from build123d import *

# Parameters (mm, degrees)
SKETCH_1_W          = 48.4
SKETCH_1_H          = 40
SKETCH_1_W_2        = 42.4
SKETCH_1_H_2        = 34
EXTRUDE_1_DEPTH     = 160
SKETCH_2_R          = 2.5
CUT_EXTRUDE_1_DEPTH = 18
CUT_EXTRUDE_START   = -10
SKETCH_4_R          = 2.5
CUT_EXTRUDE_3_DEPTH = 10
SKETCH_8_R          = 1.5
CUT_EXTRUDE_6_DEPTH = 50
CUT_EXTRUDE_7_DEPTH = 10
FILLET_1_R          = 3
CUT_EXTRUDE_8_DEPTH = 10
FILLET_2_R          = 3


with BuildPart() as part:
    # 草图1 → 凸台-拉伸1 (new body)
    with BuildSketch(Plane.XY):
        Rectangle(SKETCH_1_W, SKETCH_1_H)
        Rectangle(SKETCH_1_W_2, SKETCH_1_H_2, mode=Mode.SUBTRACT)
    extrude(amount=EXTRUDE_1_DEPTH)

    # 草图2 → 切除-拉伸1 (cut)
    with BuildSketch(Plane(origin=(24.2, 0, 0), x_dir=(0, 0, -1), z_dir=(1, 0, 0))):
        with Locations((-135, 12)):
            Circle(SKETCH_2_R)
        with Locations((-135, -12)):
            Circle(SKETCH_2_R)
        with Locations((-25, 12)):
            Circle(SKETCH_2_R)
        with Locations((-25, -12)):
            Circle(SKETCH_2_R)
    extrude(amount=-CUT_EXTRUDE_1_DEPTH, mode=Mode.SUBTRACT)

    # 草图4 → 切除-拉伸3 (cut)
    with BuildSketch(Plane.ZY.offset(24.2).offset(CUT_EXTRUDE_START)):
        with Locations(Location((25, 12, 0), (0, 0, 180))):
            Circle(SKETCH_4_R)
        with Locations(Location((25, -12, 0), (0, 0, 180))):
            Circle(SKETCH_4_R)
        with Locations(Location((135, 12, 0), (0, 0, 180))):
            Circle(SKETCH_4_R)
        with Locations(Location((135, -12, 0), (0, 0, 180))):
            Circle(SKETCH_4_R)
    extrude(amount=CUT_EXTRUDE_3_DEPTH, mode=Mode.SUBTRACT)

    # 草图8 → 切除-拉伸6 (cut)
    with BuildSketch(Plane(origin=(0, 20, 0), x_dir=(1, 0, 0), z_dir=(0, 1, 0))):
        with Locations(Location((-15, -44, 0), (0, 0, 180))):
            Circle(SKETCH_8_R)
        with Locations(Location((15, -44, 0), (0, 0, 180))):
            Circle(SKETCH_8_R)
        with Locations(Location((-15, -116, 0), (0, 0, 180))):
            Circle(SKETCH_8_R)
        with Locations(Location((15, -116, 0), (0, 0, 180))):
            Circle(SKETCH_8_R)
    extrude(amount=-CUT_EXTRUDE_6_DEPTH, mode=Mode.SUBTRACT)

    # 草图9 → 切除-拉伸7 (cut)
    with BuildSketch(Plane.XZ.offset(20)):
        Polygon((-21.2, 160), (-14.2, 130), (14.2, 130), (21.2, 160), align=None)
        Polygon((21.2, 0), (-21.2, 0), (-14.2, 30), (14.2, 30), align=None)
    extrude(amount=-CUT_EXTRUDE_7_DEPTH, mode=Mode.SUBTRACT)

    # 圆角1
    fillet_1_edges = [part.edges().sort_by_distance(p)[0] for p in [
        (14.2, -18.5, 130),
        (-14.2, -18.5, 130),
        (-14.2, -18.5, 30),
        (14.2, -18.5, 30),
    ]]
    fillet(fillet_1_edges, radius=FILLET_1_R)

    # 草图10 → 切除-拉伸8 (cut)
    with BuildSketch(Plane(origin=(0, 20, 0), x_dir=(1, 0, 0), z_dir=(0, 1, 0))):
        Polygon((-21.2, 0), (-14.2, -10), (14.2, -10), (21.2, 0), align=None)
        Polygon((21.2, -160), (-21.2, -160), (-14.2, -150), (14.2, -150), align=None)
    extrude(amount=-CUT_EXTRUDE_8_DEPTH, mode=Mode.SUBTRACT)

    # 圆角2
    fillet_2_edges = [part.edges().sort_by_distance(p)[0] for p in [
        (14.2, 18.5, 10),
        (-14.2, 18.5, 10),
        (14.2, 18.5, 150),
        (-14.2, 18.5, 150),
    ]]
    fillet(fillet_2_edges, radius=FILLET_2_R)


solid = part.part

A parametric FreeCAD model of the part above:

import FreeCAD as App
import Part
import Sketcher
from FreeCAD import Vector


def edges_at(feature, points):
    """Names of the edges that pass closest to the given points."""
    edges = feature.Shape.Edges
    near = lambda p: min(range(len(edges)), key=lambda i: edges[i].distToShape(Part.Vertex(*p))[0])
    return sorted({f"Edge{near(p) + 1}" for p in points})


def add_polygon(sketch, points):
    """Adds a closed chain of lines whose ends are joined by coincident constraints."""
    first, n = sketch.GeometryCount, len(points)
    for a, b in zip(points, points[1:] + points[:1]):
        sketch.addGeometry(Part.LineSegment(App.Vector(*a, 0), App.Vector(*b, 0)), False)
    for i in range(n):
        sketch.addConstraint(Sketcher.Constraint("Coincident", first + i, 2, first + (i + 1) % n, 1))

doc = App.newDocument("Part")
body = doc.addObject("PartDesign::Body", "Body")

sketch1 = body.newObject("Sketcher::SketchObject", "Sketch")
sketch1.AttachmentSupport = (doc.getObject("XY_Plane"), [""])
sketch1.MapMode = "FlatFace"
add_polygon(sketch1, [(-24, 20), (-24, -20), (24, -20), (24, 20)])
add_polygon(sketch1, [(21, -17), (-21, -17), (-21, 17), (21, 17)])
sketch1.addConstraint(Sketcher.Constraint("Vertical", 0))
sketch1.addConstraint(Sketcher.Constraint("Horizontal", 1))
sketch1.addConstraint(Sketcher.Constraint("Vertical", 2))
sketch1.addConstraint(Sketcher.Constraint("Horizontal", 3))
sketch1.addConstraint(Sketcher.Constraint("Horizontal", 4))
sketch1.addConstraint(Sketcher.Constraint("Vertical", 5))
sketch1.addConstraint(Sketcher.Constraint("Horizontal", 6))
sketch1.addConstraint(Sketcher.Constraint("Vertical", 7))
sketch1.addConstraint(Sketcher.Constraint("Symmetric", 0, 2, 2, 2, -1, 1))
sketch1.addConstraint(Sketcher.Constraint("Symmetric", 4, 2, 6, 2, -1, 1))
sketch1.addConstraint(Sketcher.Constraint("DistanceY", 0, 2, 0, 1, 40.0))
sketch1.addConstraint(Sketcher.Constraint("DistanceY", 5, 1, 5, 2, 34.0))
sketch1.addConstraint(Sketcher.Constraint("DistanceX", 1, 1, 1, 2, 48.4))
sketch1.addConstraint(Sketcher.Constraint("DistanceX", 4, 2, 4, 1, 42.4))
pad1 = body.newObject("PartDesign::Pad", "Pad")
pad1.Profile = sketch1
pad1.Length = 160

sketch2 = body.newObject("Sketcher::SketchObject", "Sketch001")
sketch2.AttachmentSupport = (doc.getObject("YZ_Plane"), [""])
sketch2.MapMode = "FlatFace"
sketch2.AttachmentOffset = App.Placement(Vector(0, 0, 24.2), App.Rotation())
sketch2.addGeometry(Part.Circle(Vector(12, 135, 0), Vector(0, 0, 1), 2.5), False)
sketch2.addGeometry(Part.Circle(Vector(-12, 135, 0), Vector(0, 0, 1), 2.5), False)
sketch2.addGeometry(Part.Circle(Vector(12, 25, 0), Vector(0, 0, 1), 2.5), False)
sketch2.addGeometry(Part.Circle(Vector(-12, 25, 0), Vector(0, 0, 1), 2.5), False)
sketch2.addConstraint(Sketcher.Constraint("Equal", 0, 1))
sketch2.addConstraint(Sketcher.Constraint("Equal", 1, 2))
sketch2.addConstraint(Sketcher.Constraint("Equal", 2, 3))
sketch2.addConstraint(Sketcher.Constraint("Symmetric", 0, 3, 1, 3, -2))
sketch2.addConstraint(Sketcher.Constraint("Symmetric", 2, 3, 3, 3, -2))
sketch2.addConstraint(Sketcher.Constraint("Vertical", 0, 3, 2, 3))
sketch2.addConstraint(Sketcher.Constraint("Diameter", 0, 5.0))
sketch2.addConstraint(Sketcher.Constraint("DistanceX", -1, 1, 0, 3, 12.0))
sketch2.addConstraint(Sketcher.Constraint("DistanceY", -1, 1, 0, 3, 135.0))
sketch2.addConstraint(Sketcher.Constraint("DistanceY", -1, 1, 2, 3, 25.0))
pocket1 = body.newObject("PartDesign::Pocket", "Pocket")
pocket1.Profile = sketch2
pocket1.Length = 18

sketch3 = body.newObject("Sketcher::SketchObject", "Sketch002")
sketch3.AttachmentSupport = (doc.getObject("YZ_Plane"), [""])
sketch3.MapMode = "FlatFace"
sketch3.AttachmentOffset = App.Placement(Vector(0, 0, -14.2), App.Rotation())
sketch3.addGeometry(Part.Circle(Vector(12, 25, 0), Vector(0, 0, 1), 2.5), False)
sketch3.addGeometry(Part.Circle(Vector(-12, 25, 0), Vector(0, 0, 1), 2.5), False)
sketch3.addGeometry(Part.Circle(Vector(12, 135, 0), Vector(0, 0, 1), 2.5), False)
sketch3.addGeometry(Part.Circle(Vector(-12, 135, 0), Vector(0, 0, 1), 2.5), False)
sketch3.addConstraint(Sketcher.Constraint("Equal", 0, 1))
sketch3.addConstraint(Sketcher.Constraint("Equal", 1, 2))
sketch3.addConstraint(Sketcher.Constraint("Equal", 2, 3))
sketch3.addConstraint(Sketcher.Constraint("Symmetric", 0, 3, 1, 3, -2))
sketch3.addConstraint(Sketcher.Constraint("Symmetric", 2, 3, 3, 3, -2))
sketch3.addConstraint(Sketcher.Constraint("Vertical", 0, 3, 2, 3))
sketch3.addConstraint(Sketcher.Constraint("Diameter", 0, 5.0))
sketch3.addConstraint(Sketcher.Constraint("DistanceX", -1, 1, 0, 3, 12.0))
sketch3.addConstraint(Sketcher.Constraint("DistanceY", -1, 1, 0, 3, 25.0))
sketch3.addConstraint(Sketcher.Constraint("DistanceY", -1, 1, 2, 3, 135.0))
pocket2 = body.newObject("PartDesign::Pocket", "Pocket001")
pocket2.Profile = sketch3
pocket2.Length = 10

sketch4 = body.newObject("Sketcher::SketchObject", "Sketch003")
sketch4.AttachmentSupport = (doc.getObject("XZ_Plane"), [""])
sketch4.MapMode = "FlatFace"
sketch4.AttachmentOffset = App.Placement(Vector(0, 0, -20), App.Rotation())
sketch4.addGeometry(Part.Circle(Vector(-15, 44, 0), Vector(0, 0, 1), 1.5), False)
sketch4.addGeometry(Part.Circle(Vector(15, 44, 0), Vector(0, 0, 1), 1.5), False)
sketch4.addGeometry(Part.Circle(Vector(-15, 116, 0), Vector(0, 0, 1), 1.5), False)
sketch4.addGeometry(Part.Circle(Vector(15, 116, 0), Vector(0, 0, 1), 1.5), False)
sketch4.addConstraint(Sketcher.Constraint("Equal", 0, 1))
sketch4.addConstraint(Sketcher.Constraint("Equal", 1, 2))
sketch4.addConstraint(Sketcher.Constraint("Equal", 2, 3))
sketch4.addConstraint(Sketcher.Constraint("Symmetric", 0, 3, 1, 3, -2))
sketch4.addConstraint(Sketcher.Constraint("Symmetric", 2, 3, 3, 3, -2))
sketch4.addConstraint(Sketcher.Constraint("Vertical", 0, 3, 2, 3))
sketch4.addConstraint(Sketcher.Constraint("Diameter", 0, 3.0))
sketch4.addConstraint(Sketcher.Constraint("DistanceX", 0, 3, -1, 1, 15.0))
sketch4.addConstraint(Sketcher.Constraint("DistanceY", -1, 1, 0, 3, 44.0))
sketch4.addConstraint(Sketcher.Constraint("DistanceY", -1, 1, 2, 3, 116.0))
pocket3 = body.newObject("PartDesign::Pocket", "Pocket002")
pocket3.Profile = sketch4
pocket3.Length = 50
pocket3.Reversed = True

sketch5 = body.newObject("Sketcher::SketchObject", "Sketch004")
sketch5.AttachmentSupport = (doc.getObject("XZ_Plane"), [""])
sketch5.MapMode = "FlatFace"
sketch5.AttachmentOffset = App.Placement(Vector(0, 0, 20), App.Rotation())
add_polygon(sketch5, [(-21, 160), (-14, 130), (14, 130), (21, 160)])
add_polygon(sketch5, [(-21, 0), (21, 0), (14, 30), (-14, 30)])
sketch5.addConstraint(Sketcher.Constraint("Horizontal", 1))
sketch5.addConstraint(Sketcher.Constraint("Horizontal", 3))
sketch5.addConstraint(Sketcher.Constraint("Horizontal", 4))
sketch5.addConstraint(Sketcher.Constraint("Horizontal", 6))
sketch5.addConstraint(Sketcher.Constraint("Symmetric", 4, 2, 7, 2, -1, 1))
sketch5.addConstraint(Sketcher.Constraint("Parallel", 0, 5))
sketch5.addConstraint(Sketcher.Constraint("Parallel", 2, 7))
sketch5.addConstraint(Sketcher.Constraint("Vertical", 2, 2, 4, 2))
sketch5.addConstraint(Sketcher.Constraint("Vertical", 1, 2, 5, 2))
sketch5.addConstraint(Sketcher.Constraint("Vertical", 0, 2, 6, 2))
sketch5.addConstraint(Sketcher.Constraint("Vertical", 3, 2, 7, 2))
sketch5.addConstraint(Sketcher.Constraint("DistanceX", 1, 1, 1, 2, 28.4))
sketch5.addConstraint(Sketcher.Constraint("DistanceX", 3, 2, 3, 1, 42.4))
sketch5.addConstraint(Sketcher.Constraint("DistanceY", -1, 1, 0, 2, 130.0))
sketch5.addConstraint(Sketcher.Constraint("DistanceY", -1, 1, 2, 2, 160.0))
pocket4 = body.newObject("PartDesign::Pocket", "Pocket003")
pocket4.Profile = sketch5
pocket4.Length = 10
doc.recompute()

fillet = body.newObject("PartDesign::Fillet", "Fillet")
fillet.Base = (pocket4, edges_at(pocket4, [
    (14.2, -18.5, 130),
    (-14.2, -18.5, 130),
    (-14.2, -18.5, 30),
    (14.2, -18.5, 30),
]))
fillet.Radius = 3

sketch6 = body.newObject("Sketcher::SketchObject", "Sketch005")
sketch6.AttachmentSupport = (doc.getObject("XZ_Plane"), [""])
sketch6.MapMode = "FlatFace"
sketch6.AttachmentOffset = App.Placement(Vector(0, 0, -20), App.Rotation())
add_polygon(sketch6, [(-21, 0), (-14, 10), (14, 10), (21, 0)])
add_polygon(sketch6, [(-21, 160), (21, 160), (14, 150), (-14, 150)])
sketch6.addConstraint(Sketcher.Constraint("Horizontal", 1))
sketch6.addConstraint(Sketcher.Constraint("Horizontal", 3))
sketch6.addConstraint(Sketcher.Constraint("Horizontal", 4))
sketch6.addConstraint(Sketcher.Constraint("Horizontal", 6))
sketch6.addConstraint(Sketcher.Constraint("Symmetric", 2, 2, 3, 2, -1, 1))
sketch6.addConstraint(Sketcher.Constraint("Parallel", 0, 5))
sketch6.addConstraint(Sketcher.Constraint("Parallel", 2, 7))
sketch6.addConstraint(Sketcher.Constraint("Vertical", 2, 2, 4, 2))
sketch6.addConstraint(Sketcher.Constraint("Vertical", 1, 2, 5, 2))
sketch6.addConstraint(Sketcher.Constraint("Vertical", 0, 2, 6, 2))
sketch6.addConstraint(Sketcher.Constraint("Vertical", 3, 2, 7, 2))
sketch6.addConstraint(Sketcher.Constraint("DistanceX", 1, 1, 1, 2, 28.4))
sketch6.addConstraint(Sketcher.Constraint("DistanceX", 3, 2, 3, 1, 42.4))
sketch6.addConstraint(Sketcher.Constraint("DistanceY", -1, 1, 0, 2, 10.0))
sketch6.addConstraint(Sketcher.Constraint("DistanceY", -1, 1, 4, 2, 160.0))
pocket5 = body.newObject("PartDesign::Pocket", "Pocket004")
pocket5.Profile = sketch6
pocket5.Length = 10
pocket5.Reversed = True
doc.recompute()

fillet2 = body.newObject("PartDesign::Fillet", "Fillet001")
fillet2.Base = (pocket5, edges_at(pocket5, [
    (14.2, 18.5, 10),
    (-14.2, 18.5, 10),
    (14.2, 18.5, 150),
    (-14.2, 18.5, 150),
]))
fillet2.Radius = 3

doc.recompute()
